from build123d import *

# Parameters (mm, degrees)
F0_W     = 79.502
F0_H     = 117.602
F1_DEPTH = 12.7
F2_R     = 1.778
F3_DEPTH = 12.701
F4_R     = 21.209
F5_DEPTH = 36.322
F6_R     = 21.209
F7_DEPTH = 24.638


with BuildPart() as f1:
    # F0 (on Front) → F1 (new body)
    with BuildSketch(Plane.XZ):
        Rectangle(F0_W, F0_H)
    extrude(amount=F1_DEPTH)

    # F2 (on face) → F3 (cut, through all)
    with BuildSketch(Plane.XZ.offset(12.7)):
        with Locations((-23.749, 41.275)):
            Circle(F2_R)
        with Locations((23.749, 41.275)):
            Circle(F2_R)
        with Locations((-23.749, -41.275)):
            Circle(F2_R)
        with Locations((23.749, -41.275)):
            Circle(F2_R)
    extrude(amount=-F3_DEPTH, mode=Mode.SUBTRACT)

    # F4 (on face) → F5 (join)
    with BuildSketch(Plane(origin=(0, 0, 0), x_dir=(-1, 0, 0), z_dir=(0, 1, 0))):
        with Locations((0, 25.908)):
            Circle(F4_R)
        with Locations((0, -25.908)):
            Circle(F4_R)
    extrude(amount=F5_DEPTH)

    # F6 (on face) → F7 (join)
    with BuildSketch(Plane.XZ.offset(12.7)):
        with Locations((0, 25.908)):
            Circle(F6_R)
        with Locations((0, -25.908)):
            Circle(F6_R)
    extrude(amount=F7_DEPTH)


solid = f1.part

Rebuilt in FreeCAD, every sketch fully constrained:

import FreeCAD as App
import Part
import Sketcher
from FreeCAD import Vector
Q = App.Units.Quantity

doc = App.newDocument("Part")
body = doc.addObject("PartDesign::Body", "Body")

sketch1 = body.newObject("Sketcher::SketchObject", "Sketch")
sketch1.AttachmentSupport = (doc.getObject("XZ_Plane"), [""])
sketch1.MapMode = "FlatFace"
sketch1.addGeometry([
    Part.LineSegment(Vector(-40, 59, 0), Vector(-40, -59, 0)),
    Part.LineSegment(Vector(-40, -59, 0), Vector(40, -59, 0)),
    Part.LineSegment(Vector(40, -59, 0), Vector(40, 59, 0)),
    Part.LineSegment(Vector(40, 59, 0), Vector(-40, 59, 0)),
], False)
sketch1.addConstraint([
    Sketcher.Constraint("Coincident", 0, 2, 1, 1),
    Sketcher.Constraint("Coincident", 1, 2, 2, 1),
    Sketcher.Constraint("Coincident", 2, 2, 3, 1),
    Sketcher.Constraint("Coincident", 3, 2, 0, 1),
    Sketcher.Constraint("Vertical", 0),
    Sketcher.Constraint("Horizontal", 1),
    Sketcher.Constraint("Vertical", 2),
    Sketcher.Constraint("Horizontal", 3),
    Sketcher.Constraint("Symmetric", 0, 2, 2, 2, -1, 1),
    Sketcher.Constraint("DistanceX", 1, 1, 1, 2, Q("3.13 in")),
    Sketcher.Constraint("DistanceY", 0, 2, 0, 1, Q("4.63 in")),
])
pad1 = body.newObject("PartDesign::Pad", "Pad")
pad1.Profile = sketch1
pad1.Length = Q("0.5 in")

sketch2 = body.newObject("Sketcher::SketchObject", "Sketch001")
sketch2.AttachmentSupport = (doc.getObject("XZ_Plane"), [""])
sketch2.MapMode = "FlatFace"
sketch2.AttachmentOffset = App.Placement(Vector(0, 0, 0.5 * 25.4), App.Rotation())
sketch2.addGeometry([
    Part.Circle(Vector(-23.7, 41.3, 0), Vector(0, 0, 1), 1.8),
    Part.Circle(Vector(23.7, 41.3, 0), Vector(0, 0, 1), 1.8),
    Part.Circle(Vector(-23.7, -41.3, 0), Vector(0, 0, 1), 1.8),
    Part.Circle(Vector(23.7, -41.3, 0), Vector(0, 0, 1), 1.8),
], False)
sketch2.addConstraint([
    Sketcher.Constraint("Equal", 0, 1),
    Sketcher.Constraint("Equal", 1, 2),
    Sketcher.Constraint("Equal", 2, 3),
    Sketcher.Constraint("Symmetric", 1, 3, 2, 3, -1, 1),
    Sketcher.Constraint("Symmetric", 0, 3, 3, 3, -1, 1),
    Sketcher.Constraint("Symmetric", 0, 3, 1, 3, -2),
    Sketcher.Constraint("Diameter", 0, Q("0.14 in")),
    Sketcher.Constraint("DistanceX", 0, 3, 1, 3, Q("1.87 in")),
    Sketcher.Constraint("DistanceY", 2, 3, 0, 3, Q("3.25 in")),
])
pocket1 = body.newObject("PartDesign::Pocket", "Pocket")
pocket1.Profile = sketch2
pocket1.Type = "ThroughAll"

sketch3 = body.newObject("Sketcher::SketchObject", "Sketch002")
sketch3.AttachmentSupport = (doc.getObject("XZ_Plane"), [""])
sketch3.MapMode = "FlatFace"
sketch3.addGeometry([
    Part.Circle(Vector(0, 26, 0), Vector(0, 0, 1), 21),
    Part.Circle(Vector(0, -26, 0), Vector(0, 0, 1), 21),
], False)
sketch3.addConstraint([
    Sketcher.Constraint("Equal", 0, 1),
    Sketcher.Constraint("Symmetric", 0, 3, 1, 3, -1, 1),
    Sketcher.Constraint("PointOnObject", 0, 3, -2),
    Sketcher.Constraint("Diameter", 0, Q("1.67 in")),
    Sketcher.Constraint("DistanceY", -1, 1, 0, 3, Q("1.02 in")),
])
pad2 = body.newObject("PartDesign::Pad", "Pad001")
pad2.Profile = sketch3
pad2.Length = Q("1.43 in")
pad2.Reversed = True

sketch4 = body.newObject("Sketcher::SketchObject", "Sketch003")
sketch4.AttachmentSupport = (doc.getObject("XZ_Plane"), [""])
sketch4.MapMode = "FlatFace"
sketch4.AttachmentOffset = App.Placement(Vector(0, 0, 0.5 * 25.4), App.Rotation())
sketch4.addGeometry([
    Part.Circle(Vector(0, 26, 0), Vector(0, 0, 1), 21),
    Part.Circle(Vector(0, -26, 0), Vector(0, 0, 1), 21),
], False)
sketch4.addConstraint([
    Sketcher.Constraint("Equal", 0, 1),
    Sketcher.Constraint("Symmetric", 0, 3, 1, 3, -1, 1),
    Sketcher.Constraint("PointOnObject", 0, 3, -2),
    Sketcher.Constraint("Diameter", 0, Q("1.67 in")),
    Sketcher.Constraint("DistanceY", -1, 1, 0, 3, Q("1.02 in")),
])
pad3 = body.newObject("PartDesign::Pad", "Pad002")
pad3.Profile = sketch4
pad3.Length = Q("0.97 in")

doc.recompute()
